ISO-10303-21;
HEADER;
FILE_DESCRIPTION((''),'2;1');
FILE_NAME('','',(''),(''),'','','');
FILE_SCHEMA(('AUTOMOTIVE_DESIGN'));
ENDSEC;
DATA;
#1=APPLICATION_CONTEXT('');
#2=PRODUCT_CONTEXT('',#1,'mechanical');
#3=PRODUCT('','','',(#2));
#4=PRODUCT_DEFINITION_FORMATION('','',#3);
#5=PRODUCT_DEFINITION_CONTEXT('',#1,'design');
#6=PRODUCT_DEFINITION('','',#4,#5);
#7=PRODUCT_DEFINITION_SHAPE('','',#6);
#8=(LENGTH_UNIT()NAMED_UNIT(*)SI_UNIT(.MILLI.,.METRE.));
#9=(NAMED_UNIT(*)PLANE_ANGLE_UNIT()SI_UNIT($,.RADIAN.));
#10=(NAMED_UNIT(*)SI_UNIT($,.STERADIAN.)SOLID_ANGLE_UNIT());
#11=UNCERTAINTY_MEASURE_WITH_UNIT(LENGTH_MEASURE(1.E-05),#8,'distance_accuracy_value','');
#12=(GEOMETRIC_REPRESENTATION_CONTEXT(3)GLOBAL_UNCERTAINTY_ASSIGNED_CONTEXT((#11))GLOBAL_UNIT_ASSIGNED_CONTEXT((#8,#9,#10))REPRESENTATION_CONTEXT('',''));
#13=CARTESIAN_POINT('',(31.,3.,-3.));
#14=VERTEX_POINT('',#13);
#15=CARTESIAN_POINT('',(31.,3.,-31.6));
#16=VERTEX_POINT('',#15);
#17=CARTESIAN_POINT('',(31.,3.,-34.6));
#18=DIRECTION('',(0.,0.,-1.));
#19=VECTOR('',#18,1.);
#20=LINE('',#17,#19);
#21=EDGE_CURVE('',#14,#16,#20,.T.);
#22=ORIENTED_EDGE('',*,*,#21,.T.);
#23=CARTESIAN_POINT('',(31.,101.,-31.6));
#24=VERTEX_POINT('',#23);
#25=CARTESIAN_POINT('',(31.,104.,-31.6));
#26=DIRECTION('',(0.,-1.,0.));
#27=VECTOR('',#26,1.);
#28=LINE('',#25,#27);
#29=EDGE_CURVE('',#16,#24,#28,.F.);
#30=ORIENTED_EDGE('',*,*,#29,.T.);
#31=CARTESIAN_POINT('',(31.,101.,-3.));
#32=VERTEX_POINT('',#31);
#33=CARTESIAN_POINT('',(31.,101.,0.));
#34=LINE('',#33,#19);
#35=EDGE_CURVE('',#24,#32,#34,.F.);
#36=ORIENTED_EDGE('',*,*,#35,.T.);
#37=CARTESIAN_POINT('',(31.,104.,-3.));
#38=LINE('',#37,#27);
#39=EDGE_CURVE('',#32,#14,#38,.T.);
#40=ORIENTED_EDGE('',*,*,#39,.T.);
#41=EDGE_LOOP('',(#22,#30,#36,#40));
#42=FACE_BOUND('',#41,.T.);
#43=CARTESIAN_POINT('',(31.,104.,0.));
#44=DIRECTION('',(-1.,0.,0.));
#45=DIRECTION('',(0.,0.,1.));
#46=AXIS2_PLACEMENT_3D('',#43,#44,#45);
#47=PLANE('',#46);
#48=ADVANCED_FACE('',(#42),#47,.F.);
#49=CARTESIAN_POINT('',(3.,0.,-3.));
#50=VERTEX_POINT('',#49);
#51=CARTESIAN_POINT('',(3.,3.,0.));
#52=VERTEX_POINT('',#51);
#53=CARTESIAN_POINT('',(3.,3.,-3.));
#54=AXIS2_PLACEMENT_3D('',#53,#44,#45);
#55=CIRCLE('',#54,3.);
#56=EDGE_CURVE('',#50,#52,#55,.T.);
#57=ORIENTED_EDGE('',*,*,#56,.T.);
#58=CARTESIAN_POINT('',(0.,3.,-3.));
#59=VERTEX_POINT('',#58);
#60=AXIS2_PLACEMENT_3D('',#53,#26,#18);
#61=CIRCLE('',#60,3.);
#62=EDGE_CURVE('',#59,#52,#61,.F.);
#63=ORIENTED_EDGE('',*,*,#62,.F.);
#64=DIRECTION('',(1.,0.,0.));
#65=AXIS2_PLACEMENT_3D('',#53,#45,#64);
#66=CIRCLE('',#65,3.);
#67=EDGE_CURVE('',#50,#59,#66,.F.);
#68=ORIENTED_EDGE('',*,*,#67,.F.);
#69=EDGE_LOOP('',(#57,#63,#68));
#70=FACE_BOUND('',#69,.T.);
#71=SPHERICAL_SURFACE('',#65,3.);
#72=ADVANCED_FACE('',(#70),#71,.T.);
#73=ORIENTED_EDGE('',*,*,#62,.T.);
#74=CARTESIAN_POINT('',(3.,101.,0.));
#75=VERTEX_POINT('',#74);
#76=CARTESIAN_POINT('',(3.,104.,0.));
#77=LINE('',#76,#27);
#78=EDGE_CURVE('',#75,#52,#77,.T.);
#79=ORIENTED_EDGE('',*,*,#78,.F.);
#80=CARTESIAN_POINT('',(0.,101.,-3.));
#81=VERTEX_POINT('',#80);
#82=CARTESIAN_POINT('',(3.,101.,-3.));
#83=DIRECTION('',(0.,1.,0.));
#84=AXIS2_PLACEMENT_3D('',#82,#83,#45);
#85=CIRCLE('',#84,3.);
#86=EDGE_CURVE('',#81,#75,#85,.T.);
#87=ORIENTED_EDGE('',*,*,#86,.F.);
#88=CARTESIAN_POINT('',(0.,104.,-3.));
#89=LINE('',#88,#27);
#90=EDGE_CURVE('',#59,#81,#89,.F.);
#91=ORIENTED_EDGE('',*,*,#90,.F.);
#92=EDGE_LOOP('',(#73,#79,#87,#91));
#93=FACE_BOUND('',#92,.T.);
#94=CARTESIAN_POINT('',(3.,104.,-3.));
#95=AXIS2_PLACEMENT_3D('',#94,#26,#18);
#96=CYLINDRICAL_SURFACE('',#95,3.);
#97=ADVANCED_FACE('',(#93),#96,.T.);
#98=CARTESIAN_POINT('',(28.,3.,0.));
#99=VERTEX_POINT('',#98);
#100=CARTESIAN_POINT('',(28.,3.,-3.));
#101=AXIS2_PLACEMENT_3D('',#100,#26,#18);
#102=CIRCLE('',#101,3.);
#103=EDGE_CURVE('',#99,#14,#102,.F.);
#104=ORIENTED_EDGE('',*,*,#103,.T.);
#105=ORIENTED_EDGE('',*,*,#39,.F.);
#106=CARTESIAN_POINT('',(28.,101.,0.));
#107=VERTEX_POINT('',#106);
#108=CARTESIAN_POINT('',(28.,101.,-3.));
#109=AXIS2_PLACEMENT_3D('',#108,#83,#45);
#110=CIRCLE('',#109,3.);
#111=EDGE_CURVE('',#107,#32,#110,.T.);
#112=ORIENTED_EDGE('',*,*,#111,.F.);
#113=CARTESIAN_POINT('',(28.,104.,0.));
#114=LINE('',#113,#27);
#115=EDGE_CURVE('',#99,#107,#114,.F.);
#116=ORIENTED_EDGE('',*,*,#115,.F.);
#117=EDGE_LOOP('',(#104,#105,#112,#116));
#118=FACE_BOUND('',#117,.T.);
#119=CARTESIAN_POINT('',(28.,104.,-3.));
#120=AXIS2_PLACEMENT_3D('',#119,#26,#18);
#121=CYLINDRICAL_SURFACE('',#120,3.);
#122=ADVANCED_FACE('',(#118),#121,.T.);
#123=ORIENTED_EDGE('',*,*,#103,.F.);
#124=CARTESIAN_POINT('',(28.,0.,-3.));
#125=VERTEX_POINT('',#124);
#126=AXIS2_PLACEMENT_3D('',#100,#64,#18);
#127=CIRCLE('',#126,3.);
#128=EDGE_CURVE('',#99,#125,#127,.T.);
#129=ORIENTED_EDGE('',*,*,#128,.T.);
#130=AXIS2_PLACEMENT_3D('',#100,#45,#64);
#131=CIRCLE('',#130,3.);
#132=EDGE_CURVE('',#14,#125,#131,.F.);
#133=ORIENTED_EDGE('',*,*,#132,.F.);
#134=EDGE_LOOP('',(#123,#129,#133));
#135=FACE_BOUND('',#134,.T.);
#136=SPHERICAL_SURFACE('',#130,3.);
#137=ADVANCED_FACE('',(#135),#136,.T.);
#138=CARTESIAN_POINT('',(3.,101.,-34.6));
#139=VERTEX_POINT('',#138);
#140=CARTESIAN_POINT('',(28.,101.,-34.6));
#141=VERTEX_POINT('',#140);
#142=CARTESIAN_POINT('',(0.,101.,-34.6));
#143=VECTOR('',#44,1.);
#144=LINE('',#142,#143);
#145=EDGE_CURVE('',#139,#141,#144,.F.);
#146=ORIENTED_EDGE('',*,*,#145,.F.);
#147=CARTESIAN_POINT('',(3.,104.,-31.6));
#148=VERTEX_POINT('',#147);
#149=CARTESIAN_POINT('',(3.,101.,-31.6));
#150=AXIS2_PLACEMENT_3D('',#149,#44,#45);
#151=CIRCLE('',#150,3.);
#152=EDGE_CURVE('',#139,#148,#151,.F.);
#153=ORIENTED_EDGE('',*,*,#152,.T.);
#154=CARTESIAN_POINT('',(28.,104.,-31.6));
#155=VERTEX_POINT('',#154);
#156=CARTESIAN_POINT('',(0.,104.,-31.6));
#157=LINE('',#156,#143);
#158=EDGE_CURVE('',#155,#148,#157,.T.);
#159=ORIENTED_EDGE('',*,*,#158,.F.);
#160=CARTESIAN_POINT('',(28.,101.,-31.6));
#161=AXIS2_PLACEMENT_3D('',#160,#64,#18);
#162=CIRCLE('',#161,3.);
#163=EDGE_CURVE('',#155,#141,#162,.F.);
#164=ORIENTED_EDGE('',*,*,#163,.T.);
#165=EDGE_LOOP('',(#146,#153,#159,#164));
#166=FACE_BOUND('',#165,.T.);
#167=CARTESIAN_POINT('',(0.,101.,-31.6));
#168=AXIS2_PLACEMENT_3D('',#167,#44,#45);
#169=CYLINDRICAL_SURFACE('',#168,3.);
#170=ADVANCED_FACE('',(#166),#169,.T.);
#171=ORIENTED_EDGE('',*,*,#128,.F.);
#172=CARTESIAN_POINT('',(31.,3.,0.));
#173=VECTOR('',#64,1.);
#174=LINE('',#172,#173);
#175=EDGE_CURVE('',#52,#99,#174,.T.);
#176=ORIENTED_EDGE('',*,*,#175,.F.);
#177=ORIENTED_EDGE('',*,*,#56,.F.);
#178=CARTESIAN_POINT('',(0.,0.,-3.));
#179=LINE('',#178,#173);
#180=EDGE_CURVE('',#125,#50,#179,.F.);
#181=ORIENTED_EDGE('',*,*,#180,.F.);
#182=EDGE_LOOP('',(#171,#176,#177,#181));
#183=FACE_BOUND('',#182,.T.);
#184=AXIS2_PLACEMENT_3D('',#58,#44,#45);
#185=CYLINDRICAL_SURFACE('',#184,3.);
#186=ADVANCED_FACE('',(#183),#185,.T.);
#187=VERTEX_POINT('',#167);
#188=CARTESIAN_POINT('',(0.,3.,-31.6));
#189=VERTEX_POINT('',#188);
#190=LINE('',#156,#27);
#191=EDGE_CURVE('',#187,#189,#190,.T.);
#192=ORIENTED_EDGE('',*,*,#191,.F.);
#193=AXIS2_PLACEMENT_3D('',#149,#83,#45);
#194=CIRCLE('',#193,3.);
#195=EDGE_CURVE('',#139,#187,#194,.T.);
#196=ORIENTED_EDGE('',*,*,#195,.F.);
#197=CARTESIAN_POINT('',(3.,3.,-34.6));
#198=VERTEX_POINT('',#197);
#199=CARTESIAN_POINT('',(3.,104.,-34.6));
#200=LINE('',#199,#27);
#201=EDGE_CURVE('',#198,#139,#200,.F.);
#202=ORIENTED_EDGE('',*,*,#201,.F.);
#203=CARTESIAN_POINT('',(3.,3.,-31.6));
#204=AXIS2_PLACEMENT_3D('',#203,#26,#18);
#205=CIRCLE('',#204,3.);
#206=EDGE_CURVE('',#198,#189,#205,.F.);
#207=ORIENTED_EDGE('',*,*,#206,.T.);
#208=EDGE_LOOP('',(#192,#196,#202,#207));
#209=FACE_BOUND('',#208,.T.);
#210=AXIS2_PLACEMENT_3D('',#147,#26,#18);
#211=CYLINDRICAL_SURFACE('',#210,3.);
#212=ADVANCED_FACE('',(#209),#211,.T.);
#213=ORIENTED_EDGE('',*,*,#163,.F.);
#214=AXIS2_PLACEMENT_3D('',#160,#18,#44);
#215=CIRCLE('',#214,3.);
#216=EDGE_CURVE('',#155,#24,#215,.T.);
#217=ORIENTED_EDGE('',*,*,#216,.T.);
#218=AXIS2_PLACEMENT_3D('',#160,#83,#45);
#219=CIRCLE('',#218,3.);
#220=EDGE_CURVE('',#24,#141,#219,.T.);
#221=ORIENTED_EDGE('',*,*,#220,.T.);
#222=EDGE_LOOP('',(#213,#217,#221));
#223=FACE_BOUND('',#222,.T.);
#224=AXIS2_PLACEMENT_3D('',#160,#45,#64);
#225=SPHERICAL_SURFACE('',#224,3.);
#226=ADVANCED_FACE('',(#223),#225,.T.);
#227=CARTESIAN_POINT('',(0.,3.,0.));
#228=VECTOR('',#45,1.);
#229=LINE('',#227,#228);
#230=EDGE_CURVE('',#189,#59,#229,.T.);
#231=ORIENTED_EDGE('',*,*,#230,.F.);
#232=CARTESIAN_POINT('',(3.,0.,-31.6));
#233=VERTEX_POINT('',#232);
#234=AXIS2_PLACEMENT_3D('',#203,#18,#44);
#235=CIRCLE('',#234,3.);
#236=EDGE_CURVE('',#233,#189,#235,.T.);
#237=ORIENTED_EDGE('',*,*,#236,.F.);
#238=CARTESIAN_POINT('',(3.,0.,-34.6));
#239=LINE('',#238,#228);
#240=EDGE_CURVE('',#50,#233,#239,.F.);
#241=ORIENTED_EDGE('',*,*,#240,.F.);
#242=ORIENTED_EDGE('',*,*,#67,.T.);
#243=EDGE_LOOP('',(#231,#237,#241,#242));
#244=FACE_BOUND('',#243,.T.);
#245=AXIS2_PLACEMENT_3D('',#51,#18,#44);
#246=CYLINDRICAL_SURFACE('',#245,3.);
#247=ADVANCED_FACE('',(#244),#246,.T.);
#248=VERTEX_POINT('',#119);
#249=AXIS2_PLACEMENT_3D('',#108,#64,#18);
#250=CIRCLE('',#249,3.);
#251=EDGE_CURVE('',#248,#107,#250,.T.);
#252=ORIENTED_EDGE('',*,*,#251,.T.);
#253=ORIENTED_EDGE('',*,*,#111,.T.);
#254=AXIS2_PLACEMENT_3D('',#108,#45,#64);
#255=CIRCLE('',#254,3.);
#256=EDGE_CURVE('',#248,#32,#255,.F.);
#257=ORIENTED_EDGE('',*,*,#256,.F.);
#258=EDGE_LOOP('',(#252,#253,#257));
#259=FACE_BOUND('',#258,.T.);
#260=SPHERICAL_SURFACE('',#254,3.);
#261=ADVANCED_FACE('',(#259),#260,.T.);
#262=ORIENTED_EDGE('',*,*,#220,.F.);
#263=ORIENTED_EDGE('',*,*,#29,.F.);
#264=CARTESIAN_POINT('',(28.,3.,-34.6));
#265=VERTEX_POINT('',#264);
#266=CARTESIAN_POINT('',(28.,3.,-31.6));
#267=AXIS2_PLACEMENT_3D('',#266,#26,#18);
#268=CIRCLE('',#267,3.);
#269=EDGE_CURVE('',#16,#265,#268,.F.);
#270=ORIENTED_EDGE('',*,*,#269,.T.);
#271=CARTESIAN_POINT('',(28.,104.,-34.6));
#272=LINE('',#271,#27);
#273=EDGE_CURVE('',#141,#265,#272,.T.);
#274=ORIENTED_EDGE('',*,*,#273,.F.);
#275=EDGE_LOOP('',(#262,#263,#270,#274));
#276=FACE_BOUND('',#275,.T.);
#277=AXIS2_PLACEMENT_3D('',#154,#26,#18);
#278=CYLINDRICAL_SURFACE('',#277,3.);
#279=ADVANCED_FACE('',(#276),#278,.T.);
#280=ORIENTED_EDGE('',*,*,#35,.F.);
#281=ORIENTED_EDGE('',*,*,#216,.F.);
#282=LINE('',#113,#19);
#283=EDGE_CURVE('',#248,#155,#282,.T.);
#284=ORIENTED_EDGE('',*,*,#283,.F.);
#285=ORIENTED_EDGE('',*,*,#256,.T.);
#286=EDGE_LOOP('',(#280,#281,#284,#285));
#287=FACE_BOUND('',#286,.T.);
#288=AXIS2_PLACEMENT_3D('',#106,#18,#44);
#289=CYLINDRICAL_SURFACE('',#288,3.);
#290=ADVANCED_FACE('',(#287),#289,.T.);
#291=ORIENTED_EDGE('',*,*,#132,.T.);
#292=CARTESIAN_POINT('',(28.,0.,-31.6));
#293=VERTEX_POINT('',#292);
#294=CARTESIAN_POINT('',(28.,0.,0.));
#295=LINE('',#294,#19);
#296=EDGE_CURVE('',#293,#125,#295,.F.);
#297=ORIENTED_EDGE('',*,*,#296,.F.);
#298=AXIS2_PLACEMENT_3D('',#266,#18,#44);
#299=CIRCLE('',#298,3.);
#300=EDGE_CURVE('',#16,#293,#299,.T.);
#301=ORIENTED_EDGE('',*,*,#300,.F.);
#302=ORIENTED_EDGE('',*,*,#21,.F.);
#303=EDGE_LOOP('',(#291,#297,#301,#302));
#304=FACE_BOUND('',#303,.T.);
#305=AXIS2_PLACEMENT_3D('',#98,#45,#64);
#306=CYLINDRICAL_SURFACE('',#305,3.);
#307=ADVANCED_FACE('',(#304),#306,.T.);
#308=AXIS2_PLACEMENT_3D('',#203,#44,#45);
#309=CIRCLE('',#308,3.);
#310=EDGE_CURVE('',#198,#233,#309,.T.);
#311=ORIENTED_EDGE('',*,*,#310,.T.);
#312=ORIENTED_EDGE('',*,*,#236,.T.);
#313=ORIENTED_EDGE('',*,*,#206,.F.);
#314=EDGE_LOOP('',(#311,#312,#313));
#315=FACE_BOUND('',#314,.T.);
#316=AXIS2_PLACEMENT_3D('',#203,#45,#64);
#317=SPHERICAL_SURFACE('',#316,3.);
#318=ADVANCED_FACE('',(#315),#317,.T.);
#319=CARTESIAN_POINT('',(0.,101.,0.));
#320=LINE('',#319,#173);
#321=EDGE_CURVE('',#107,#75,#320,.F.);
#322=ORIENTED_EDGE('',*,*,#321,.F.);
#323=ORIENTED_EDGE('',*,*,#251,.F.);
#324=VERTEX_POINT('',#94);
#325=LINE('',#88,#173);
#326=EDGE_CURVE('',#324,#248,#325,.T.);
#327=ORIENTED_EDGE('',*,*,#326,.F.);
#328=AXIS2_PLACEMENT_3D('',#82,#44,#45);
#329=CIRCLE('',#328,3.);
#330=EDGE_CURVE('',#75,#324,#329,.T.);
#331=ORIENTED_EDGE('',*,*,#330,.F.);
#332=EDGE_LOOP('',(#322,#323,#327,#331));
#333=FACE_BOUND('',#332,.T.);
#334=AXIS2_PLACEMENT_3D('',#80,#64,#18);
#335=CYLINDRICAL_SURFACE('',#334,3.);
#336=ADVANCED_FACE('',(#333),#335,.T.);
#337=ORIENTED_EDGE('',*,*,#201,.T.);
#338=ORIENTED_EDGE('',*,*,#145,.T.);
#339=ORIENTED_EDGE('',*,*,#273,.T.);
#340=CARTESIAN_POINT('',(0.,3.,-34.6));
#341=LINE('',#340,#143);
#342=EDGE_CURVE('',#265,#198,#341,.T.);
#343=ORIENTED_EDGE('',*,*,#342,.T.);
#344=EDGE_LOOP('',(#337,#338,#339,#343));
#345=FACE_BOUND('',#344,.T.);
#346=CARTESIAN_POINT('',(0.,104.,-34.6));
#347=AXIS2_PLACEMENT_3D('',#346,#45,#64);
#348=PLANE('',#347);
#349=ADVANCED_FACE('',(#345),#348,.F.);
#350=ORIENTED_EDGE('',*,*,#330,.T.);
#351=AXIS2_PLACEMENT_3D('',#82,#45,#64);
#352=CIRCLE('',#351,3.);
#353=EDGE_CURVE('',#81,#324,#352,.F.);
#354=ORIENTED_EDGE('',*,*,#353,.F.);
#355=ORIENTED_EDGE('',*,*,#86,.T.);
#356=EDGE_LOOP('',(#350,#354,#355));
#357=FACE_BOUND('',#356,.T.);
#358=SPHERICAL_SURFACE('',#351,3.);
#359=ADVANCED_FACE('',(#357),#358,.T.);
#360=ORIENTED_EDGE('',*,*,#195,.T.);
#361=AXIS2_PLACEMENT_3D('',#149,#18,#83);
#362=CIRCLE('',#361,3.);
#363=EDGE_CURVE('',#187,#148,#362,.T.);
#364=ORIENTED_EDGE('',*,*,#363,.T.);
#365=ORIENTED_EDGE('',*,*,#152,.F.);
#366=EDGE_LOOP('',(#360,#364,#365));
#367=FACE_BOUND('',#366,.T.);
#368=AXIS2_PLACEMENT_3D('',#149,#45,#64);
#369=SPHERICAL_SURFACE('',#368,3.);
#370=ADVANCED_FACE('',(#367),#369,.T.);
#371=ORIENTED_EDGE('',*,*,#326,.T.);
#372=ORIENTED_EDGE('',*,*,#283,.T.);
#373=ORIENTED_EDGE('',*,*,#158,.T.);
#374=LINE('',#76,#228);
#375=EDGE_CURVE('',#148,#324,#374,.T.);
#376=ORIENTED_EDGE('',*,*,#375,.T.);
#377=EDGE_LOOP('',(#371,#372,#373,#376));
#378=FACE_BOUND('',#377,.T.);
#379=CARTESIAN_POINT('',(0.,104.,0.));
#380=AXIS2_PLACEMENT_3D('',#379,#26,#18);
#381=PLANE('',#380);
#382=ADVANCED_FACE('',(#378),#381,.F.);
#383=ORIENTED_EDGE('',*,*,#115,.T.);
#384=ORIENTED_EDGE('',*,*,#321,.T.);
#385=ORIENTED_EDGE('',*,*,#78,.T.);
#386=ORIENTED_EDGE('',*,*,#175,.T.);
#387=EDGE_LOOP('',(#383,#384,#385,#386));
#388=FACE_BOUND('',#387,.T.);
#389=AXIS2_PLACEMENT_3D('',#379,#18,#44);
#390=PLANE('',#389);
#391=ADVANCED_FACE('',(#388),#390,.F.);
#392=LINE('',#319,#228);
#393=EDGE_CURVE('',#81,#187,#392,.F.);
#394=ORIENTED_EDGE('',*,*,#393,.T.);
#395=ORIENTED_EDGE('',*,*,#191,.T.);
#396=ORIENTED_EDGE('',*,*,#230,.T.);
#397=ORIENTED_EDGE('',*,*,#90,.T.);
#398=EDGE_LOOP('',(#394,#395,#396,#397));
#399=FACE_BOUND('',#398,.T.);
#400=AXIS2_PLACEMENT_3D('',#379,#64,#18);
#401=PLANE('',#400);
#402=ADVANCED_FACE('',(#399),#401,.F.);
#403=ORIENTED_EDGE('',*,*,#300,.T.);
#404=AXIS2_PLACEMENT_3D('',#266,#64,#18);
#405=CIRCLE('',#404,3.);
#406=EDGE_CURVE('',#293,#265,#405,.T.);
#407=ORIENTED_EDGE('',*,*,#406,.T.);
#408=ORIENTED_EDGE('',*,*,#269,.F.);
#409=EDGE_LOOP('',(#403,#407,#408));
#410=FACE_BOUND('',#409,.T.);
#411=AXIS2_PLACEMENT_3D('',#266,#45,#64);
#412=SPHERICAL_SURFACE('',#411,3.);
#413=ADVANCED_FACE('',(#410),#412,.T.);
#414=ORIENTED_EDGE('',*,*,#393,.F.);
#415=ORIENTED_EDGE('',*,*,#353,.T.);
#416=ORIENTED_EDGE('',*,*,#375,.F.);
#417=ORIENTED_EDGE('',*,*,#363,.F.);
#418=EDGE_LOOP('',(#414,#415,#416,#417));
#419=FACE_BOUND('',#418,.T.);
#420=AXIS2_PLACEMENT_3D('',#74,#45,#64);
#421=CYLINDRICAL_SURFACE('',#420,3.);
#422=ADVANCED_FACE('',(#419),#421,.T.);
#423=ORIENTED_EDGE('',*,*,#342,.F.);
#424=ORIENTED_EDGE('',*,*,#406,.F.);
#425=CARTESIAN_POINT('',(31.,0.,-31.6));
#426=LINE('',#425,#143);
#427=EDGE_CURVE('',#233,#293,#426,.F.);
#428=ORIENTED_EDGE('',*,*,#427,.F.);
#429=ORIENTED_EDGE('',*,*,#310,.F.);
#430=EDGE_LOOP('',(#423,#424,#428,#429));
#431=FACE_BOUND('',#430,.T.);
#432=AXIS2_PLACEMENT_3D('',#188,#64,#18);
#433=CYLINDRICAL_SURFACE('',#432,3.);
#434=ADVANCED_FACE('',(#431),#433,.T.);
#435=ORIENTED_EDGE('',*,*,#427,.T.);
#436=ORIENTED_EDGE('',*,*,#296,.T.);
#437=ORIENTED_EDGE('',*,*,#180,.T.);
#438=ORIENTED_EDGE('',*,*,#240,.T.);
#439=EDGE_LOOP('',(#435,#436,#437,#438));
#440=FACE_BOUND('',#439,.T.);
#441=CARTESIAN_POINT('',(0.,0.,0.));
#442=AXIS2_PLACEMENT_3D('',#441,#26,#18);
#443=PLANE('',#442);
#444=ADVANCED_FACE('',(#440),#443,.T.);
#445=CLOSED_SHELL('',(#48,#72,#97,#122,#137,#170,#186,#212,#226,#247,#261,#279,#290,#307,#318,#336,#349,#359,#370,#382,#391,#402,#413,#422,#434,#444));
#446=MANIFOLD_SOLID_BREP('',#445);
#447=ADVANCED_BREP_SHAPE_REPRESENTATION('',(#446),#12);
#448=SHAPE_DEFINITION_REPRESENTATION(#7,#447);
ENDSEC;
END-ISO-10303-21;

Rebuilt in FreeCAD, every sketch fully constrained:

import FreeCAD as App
import Part
import Sketcher
Q = App.Units.Quantity


def add_polygon(sketch, points):
    """Adds a closed chain of lines whose ends are joined by coincident constraints."""
    first, n = sketch.GeometryCount, len(points)
    for a, b in zip(points, points[1:] + points[:1]):
        sketch.addGeometry(Part.LineSegment(App.Vector(*a, 0), App.Vector(*b, 0)), False)
    for i in range(n):
        sketch.addConstraint(Sketcher.Constraint("Coincident", first + i, 2, first + (i + 1) % n, 1))

doc = App.newDocument("Part")
body = doc.addObject("PartDesign::Body", "Body")

sketch1 = doc.addObject("Sketcher::SketchObject", "Sketch")
body.addObject(sketch1)
sketch1.AttachmentSupport = (doc.XZ_Plane, [""])
sketch1.MapMode = "FlatFace"
add_polygon(sketch1, [(0, -35), (0, 0), (31, 0), (31, -35)])
sketch1.addConstraint(Sketcher.Constraint("Vertical", 0))
sketch1.addConstraint(Sketcher.Constraint("Horizontal", 1))
sketch1.addConstraint(Sketcher.Constraint("Vertical", 2))
sketch1.addConstraint(Sketcher.Constraint("Horizontal", 3))
sketch1.addConstraint(Sketcher.Constraint("Coincident", 0, 2, -1, 1))
sketch1.addConstraint(Sketcher.Constraint("DistanceX", 1, 1, 1, 2, Q("31 mm")))
sketch1.addConstraint(Sketcher.Constraint("DistanceY", 0, 1, 0, 2, Q("34.6 mm")))
pad1 = doc.addObject("PartDesign::Pad", "Pad")
body.addObject(pad1)
pad1.Profile = sketch1
pad1.Length = 104
pad1.Reversed = True
doc.recompute()

fillet = doc.addObject("PartDesign::Fillet", "Fillet")
body.addObject(fillet)
fillet.Base = (pad1, ["Edge1"])
fillet.UseAllEdges = True
fillet.Radius = 3

doc.recompute()
